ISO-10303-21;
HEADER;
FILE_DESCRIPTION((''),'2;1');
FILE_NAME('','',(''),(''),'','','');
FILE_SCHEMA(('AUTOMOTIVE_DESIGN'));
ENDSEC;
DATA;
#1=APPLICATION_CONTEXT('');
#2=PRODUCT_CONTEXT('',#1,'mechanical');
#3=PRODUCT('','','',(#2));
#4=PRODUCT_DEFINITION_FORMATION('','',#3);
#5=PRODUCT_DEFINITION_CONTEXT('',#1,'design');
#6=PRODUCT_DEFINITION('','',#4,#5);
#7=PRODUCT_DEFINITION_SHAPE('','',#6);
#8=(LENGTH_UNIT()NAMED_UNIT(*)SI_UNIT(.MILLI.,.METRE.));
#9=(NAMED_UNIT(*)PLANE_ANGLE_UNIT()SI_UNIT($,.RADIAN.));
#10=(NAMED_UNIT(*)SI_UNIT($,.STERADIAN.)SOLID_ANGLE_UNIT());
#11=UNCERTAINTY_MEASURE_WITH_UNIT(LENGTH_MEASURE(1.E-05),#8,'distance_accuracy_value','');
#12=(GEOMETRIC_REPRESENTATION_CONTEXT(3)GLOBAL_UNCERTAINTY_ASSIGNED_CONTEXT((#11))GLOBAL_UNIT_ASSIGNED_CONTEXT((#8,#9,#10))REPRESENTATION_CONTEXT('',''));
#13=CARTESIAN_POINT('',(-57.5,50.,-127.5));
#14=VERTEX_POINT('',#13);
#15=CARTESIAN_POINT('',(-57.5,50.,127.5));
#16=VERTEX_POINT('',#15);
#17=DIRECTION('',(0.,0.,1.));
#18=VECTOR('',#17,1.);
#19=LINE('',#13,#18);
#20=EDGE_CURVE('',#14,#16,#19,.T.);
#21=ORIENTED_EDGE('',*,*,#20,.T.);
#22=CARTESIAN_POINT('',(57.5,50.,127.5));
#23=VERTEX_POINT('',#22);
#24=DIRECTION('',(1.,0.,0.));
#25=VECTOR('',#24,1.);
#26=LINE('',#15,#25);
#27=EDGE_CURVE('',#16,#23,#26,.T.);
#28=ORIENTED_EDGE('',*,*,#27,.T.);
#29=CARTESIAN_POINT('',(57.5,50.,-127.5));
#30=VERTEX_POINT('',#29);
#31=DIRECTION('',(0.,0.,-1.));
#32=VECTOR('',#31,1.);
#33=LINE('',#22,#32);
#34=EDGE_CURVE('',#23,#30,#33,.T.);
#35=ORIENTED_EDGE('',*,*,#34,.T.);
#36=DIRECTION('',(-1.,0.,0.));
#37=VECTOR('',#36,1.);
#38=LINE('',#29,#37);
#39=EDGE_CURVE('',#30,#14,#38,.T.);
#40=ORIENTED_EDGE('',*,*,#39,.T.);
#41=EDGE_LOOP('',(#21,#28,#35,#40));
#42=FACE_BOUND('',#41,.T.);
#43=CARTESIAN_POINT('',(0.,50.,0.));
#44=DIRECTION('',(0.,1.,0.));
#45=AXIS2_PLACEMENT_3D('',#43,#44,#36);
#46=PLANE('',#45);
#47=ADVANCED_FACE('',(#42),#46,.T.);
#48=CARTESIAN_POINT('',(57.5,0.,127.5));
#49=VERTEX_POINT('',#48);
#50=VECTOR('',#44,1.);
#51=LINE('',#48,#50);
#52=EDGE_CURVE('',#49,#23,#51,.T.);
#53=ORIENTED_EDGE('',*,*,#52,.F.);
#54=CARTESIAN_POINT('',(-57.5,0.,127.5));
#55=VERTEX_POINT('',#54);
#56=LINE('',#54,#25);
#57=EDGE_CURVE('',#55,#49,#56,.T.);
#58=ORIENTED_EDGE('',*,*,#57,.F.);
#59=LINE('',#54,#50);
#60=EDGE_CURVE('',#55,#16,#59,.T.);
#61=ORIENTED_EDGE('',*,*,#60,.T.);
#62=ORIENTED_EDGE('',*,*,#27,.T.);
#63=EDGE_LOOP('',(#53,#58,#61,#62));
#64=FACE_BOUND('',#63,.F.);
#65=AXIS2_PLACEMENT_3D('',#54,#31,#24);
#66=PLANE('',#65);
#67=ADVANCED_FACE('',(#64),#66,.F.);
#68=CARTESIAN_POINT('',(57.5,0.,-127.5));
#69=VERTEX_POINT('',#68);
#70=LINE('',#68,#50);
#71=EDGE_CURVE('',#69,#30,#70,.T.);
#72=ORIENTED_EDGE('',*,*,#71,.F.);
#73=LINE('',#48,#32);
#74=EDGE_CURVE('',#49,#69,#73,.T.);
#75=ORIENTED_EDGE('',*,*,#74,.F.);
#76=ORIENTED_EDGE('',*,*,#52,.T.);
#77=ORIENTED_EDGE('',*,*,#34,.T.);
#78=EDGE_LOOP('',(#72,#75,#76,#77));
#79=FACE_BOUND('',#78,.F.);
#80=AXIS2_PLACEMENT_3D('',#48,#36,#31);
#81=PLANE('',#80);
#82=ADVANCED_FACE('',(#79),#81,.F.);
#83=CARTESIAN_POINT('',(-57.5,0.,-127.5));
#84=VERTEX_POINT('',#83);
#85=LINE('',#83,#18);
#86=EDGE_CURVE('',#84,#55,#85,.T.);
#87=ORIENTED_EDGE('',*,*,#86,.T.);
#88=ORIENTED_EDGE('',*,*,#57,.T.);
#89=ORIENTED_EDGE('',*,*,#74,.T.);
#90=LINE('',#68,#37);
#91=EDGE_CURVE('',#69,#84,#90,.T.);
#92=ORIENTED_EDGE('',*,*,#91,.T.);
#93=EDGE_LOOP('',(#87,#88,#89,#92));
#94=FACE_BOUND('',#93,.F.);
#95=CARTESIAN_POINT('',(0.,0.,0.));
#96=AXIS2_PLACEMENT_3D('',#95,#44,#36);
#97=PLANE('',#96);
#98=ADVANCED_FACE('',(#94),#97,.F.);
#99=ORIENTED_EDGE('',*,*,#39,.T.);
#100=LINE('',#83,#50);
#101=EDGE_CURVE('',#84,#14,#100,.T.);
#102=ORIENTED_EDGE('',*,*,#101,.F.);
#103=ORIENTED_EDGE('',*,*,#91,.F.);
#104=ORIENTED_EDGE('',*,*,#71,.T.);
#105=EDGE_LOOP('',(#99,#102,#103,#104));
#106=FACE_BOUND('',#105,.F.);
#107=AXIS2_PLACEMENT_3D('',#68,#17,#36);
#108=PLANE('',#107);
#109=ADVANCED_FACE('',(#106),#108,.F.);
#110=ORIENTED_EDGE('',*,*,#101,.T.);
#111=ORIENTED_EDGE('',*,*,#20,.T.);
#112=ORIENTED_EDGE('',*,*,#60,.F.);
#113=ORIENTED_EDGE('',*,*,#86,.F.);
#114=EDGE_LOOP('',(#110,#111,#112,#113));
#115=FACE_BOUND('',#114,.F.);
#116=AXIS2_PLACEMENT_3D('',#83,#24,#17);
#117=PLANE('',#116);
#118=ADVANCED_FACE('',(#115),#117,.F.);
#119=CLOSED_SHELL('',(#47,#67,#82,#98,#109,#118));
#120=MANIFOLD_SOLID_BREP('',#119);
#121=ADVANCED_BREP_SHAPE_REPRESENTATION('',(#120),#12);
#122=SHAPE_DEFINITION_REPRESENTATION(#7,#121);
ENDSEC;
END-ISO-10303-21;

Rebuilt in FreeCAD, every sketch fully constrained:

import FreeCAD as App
import Part
import Sketcher
from FreeCAD import Vector
Q = App.Units.Quantity


def add_polygon(sketch, points):
    """Adds a closed chain of lines whose ends are joined by coincident constraints."""
    first, n = sketch.GeometryCount, len(points)
    for a, b in zip(points, points[1:] + points[:1]):
        sketch.addGeometry(Part.LineSegment(App.Vector(*a, 0), App.Vector(*b, 0)), False)
    for i in range(n):
        sketch.addConstraint(Sketcher.Constraint("Coincident", first + i, 2, first + (i + 1) % n, 1))

doc = App.newDocument("Part")
params = doc.addObject("Spreadsheet::Sheet", "Params")
for row, (alias, value) in enumerate([
    ("sketch1_width", "115 mm"),
    ("sketch1_height", "255 mm"),
    ("pad1_length", "50 mm"),
], start=1):
    params.set(f"A{row}", alias)
    params.set(f"B{row}", "=" + value)
    params.setAlias(f"B{row}", alias)

body = doc.addObject("PartDesign::Body", "Body")

sketch1 = body.newObject("Sketcher::SketchObject", "Sketch")
sketch1.AttachmentSupport = (doc.getObject("XZ_Plane"), [""])
sketch1.MapMode = "FlatFace"
add_polygon(sketch1, [(-58, -128), (-58, 128), (58, 128), (58, -128)])
sketch1.addConstraint([
    Sketcher.Constraint("Vertical", 0),
    Sketcher.Constraint("Horizontal", 1),
    Sketcher.Constraint("Vertical", 2),
    Sketcher.Constraint("Horizontal", 3),
    Sketcher.Constraint("Symmetric", 0, 2, 2, 2, -1, 1),
    Sketcher.Constraint("DistanceX", 1, 1, 1, 2, Q("115 mm")),
    Sketcher.Constraint("DistanceY", 0, 1, 0, 2, Q("255 mm")),
])
sketch1.setExpression("Constraints[9]", "Params.sketch1_width")
sketch1.setExpression("Constraints[10]", "Params.sketch1_height")
pad1 = body.newObject("PartDesign::Pad", "Pad")
pad1.Profile = sketch1
pad1.setExpression("Length", "Params.pad1_length")
pad1.Reversed = True

doc.recompute()
